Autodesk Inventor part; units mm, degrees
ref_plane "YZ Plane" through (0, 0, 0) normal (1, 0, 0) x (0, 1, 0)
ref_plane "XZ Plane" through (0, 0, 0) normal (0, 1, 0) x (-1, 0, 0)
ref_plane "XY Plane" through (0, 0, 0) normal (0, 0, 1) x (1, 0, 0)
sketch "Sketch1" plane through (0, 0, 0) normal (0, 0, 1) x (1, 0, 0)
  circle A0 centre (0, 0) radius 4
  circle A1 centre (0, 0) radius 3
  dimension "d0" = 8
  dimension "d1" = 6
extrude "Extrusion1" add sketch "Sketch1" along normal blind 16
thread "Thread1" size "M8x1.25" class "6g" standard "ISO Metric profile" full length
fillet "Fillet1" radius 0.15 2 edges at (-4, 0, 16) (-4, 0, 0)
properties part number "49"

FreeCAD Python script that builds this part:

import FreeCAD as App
import Part
import Sketcher


def edges_at(feature, points):
    """Names of the edges that pass closest to the given points."""
    edges = feature.Shape.Edges
    near = lambda p: min(range(len(edges)), key=lambda i: edges[i].distToShape(Part.Vertex(*p))[0])
    return sorted({f"Edge{near(p) + 1}" for p in points})

doc = App.newDocument("Part")
body = doc.addObject("PartDesign::Body", "Body")

# Sketch on XY plane
sketch1 = body.newObject("Sketcher::SketchObject", "Sketch")
sketch1.AttachmentSupport = (doc.getObject("XY_Plane"), [""])
sketch1.MapMode = "FlatFace"
sketch1.addGeometry(Part.Circle(App.Vector(0, 0, 0), App.Vector(0, 0, 1), 4), False)
sketch1.addGeometry(Part.Circle(App.Vector(0, 0, 0), App.Vector(0, 0, 1), 3), False)
sketch1.addConstraint(Sketcher.Constraint("Coincident", 0, 3, -1, 1))
sketch1.addConstraint(Sketcher.Constraint("Coincident", 1, 3, -1, 1))
sketch1.addConstraint(Sketcher.Constraint("Diameter", 0, 8.0))
sketch1.addConstraint(Sketcher.Constraint("Diameter", 1, 6.0))
pad1 = body.newObject("PartDesign::Pad", "Pad")
pad1.Profile = sketch1
pad1.Length = 16
doc.recompute()

fillet = body.newObject("PartDesign::Fillet", "Fillet")
fillet.Base = (pad1, edges_at(pad1, [(-4, 0, 16), (-4, 0, 0)]))
fillet.Radius = 0.15

doc.recompute()
